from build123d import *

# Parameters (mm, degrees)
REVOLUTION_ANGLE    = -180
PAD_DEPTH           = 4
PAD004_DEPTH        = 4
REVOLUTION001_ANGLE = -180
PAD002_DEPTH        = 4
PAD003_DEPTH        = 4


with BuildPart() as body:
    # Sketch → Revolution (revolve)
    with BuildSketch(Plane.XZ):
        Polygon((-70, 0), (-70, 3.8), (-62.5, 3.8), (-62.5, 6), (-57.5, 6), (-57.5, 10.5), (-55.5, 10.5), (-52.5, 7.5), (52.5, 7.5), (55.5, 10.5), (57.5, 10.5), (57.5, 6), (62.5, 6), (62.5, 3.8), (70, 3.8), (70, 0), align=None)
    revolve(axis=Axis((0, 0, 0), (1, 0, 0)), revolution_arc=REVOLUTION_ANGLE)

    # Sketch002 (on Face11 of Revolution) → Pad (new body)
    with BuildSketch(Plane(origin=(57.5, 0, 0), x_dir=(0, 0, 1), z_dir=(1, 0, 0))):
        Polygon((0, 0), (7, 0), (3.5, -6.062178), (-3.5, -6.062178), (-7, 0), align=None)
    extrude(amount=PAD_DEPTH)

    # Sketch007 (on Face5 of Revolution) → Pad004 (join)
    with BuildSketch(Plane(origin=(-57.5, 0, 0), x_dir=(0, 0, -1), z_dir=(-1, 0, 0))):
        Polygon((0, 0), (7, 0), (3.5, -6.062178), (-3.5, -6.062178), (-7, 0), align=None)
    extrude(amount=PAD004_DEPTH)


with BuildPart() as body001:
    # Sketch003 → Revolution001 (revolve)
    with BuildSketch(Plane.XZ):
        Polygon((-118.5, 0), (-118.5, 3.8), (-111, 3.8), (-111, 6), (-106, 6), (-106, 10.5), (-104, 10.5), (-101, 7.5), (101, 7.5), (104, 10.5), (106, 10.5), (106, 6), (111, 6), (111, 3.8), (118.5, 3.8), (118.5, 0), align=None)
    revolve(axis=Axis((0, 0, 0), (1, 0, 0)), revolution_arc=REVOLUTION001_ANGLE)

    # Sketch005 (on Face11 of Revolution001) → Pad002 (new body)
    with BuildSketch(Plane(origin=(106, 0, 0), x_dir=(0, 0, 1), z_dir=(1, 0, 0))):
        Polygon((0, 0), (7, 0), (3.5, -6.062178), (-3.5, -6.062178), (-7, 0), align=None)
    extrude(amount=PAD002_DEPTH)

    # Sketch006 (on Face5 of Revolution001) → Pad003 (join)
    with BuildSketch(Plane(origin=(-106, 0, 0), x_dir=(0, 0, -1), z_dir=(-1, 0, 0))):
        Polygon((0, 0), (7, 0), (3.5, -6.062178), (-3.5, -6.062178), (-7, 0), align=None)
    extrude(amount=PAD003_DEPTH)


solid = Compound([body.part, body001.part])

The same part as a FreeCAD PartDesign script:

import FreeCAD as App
import Part
import Sketcher
from FreeCAD import Vector
Q = App.Units.Quantity

doc = App.newDocument("Part")
body = doc.addObject("PartDesign::Body", "Body")

sketch1 = body.newObject("Sketcher::SketchObject", "Sketch")
sketch1.AttachmentSupport = (doc.getObject("XZ_Plane"), [""])
sketch1.MapMode = "FlatFace"
sketch1.addGeometry([
    Part.LineSegment(Vector(-70, 3.8, 0), Vector(-70, 0, 0)),
    Part.LineSegment(Vector(-70, 0, 0), Vector(70, 0, 0)),
    Part.LineSegment(Vector(70, 0, 0), Vector(70, 3.8, 0)),
    Part.LineSegment(Vector(70, 3.8, 0), Vector(62.5, 3.8, 0)),
    Part.LineSegment(Vector(62.5, 3.8, 0), Vector(62.5, 6, 0)),
    Part.LineSegment(Vector(62.5, 6, 0), Vector(57.5, 6, 0)),
    Part.LineSegment(Vector(57.5, 6, 0), Vector(57.5, 10.5, 0)),
    Part.LineSegment(Vector(57.5, 10.5, 0), Vector(55.5, 10.5, 0)),
    Part.LineSegment(Vector(55.5, 10.5, 0), Vector(52.5, 7.5, 0)),
    Part.LineSegment(Vector(52.5, 7.5, 0), Vector(-52.5, 7.5, 0)),
    Part.LineSegment(Vector(-52.5, 7.5, 0), Vector(-55.5, 10.5, 0)),
    Part.LineSegment(Vector(-55.5, 10.5, 0), Vector(-57.5, 10.5, 0)),
    Part.LineSegment(Vector(-57.5, 10.5, 0), Vector(-57.5, 6, 0)),
    Part.LineSegment(Vector(-57.5, 6, 0), Vector(-62.5, 6, 0)),
    Part.LineSegment(Vector(-62.5, 6, 0), Vector(-62.5, 3.8, 0)),
    Part.LineSegment(Vector(-62.5, 3.8, 0), Vector(-70, 3.8, 0)),
], False)
sketch1.addConstraint([
    Sketcher.Constraint("Coincident", 0, 2, 1, 1),
    Sketcher.Constraint("Coincident", 1, 2, 2, 1),
    Sketcher.Constraint("Coincident", 2, 2, 3, 1),
    Sketcher.Constraint("Coincident", 3, 2, 4, 1),
    Sketcher.Constraint("Coincident", 4, 2, 5, 1),
    Sketcher.Constraint("Coincident", 5, 2, 6, 1),
    Sketcher.Constraint("Coincident", 6, 2, 7, 1),
    Sketcher.Constraint("Coincident", 7, 2, 8, 1),
    Sketcher.Constraint("Coincident", 8, 2, 9, 1),
    Sketcher.Constraint("Coincident", 9, 2, 10, 1),
    Sketcher.Constraint("Coincident", 10, 2, 11, 1),
    Sketcher.Constraint("Coincident", 11, 2, 12, 1),
    Sketcher.Constraint("Coincident", 12, 2, 13, 1),
    Sketcher.Constraint("Coincident", 13, 2, 14, 1),
    Sketcher.Constraint("Coincident", 14, 2, 15, 1),
    Sketcher.Constraint("Coincident", 15, 2, 0, 1),
    Sketcher.Constraint("Vertical", 0),
    Sketcher.Constraint("Horizontal", 1),
    Sketcher.Constraint("Vertical", 2),
    Sketcher.Constraint("Horizontal", 3),
    Sketcher.Constraint("Vertical", 4),
    Sketcher.Constraint("Horizontal", 5),
    Sketcher.Constraint("Vertical", 6),
    Sketcher.Constraint("Horizontal", 7),
    Sketcher.Constraint("Horizontal", 9),
    Sketcher.Constraint("Horizontal", 11),
    Sketcher.Constraint("Vertical", 12),
    Sketcher.Constraint("Horizontal", 13),
    Sketcher.Constraint("Vertical", 14),
    Sketcher.Constraint("Horizontal", 15),
    Sketcher.Constraint("Symmetric", 0, 2, 1, 2, -1, 1),
    Sketcher.Constraint("Symmetric", 7, 2, 10, 2, -2),
    Sketcher.Constraint("Symmetric", 5, 2, 12, 2, -2),
    Sketcher.Constraint("Symmetric", 3, 2, 14, 2, -2),
    Sketcher.Constraint("Perpendicular", 8, 10),
    Sketcher.Constraint("Equal", 8, 10),
    Sketcher.Constraint("DistanceX", 1, 1, 1, 2, 140.0),
    Sketcher.Constraint("DistanceX", 5, 2, 5, 1, 5.0),
    Sketcher.Constraint("DistanceX", 7, 2, 7, 1, 2.0),
    Sketcher.Constraint("DistanceX", 9, 2, 9, 1, 105.0),
    Sketcher.Constraint("DistanceX", 3, 2, 3, 1, 7.5),
    Sketcher.Constraint("DistanceY", 0, 2, 0, 1, 3.8),
    Sketcher.Constraint("DistanceY", 4, 1, 4, 2, 2.2),
    Sketcher.Constraint("DistanceY", 6, 1, 6, 2, 4.5),
])
revolution = body.newObject("PartDesign::Revolution", "Revolution")
revolution.Profile = sketch1
revolution.ReferenceAxis = (sketch1, ["H_Axis"])
revolution.Angle = 180
revolution.Reversed = True

sketch2 = body.newObject("Sketcher::SketchObject", "Sketch001")
sketch2.AttachmentSupport = (doc.getObject("YZ_Plane"), [""])
sketch2.MapMode = "FlatFace"
sketch2.AttachmentOffset = App.Placement(Vector(0, 0, 57.5), App.Rotation())
sketch2.addGeometry([
    Part.LineSegment(Vector(0, 7, 0), Vector(0, -7, 0)),
    Part.LineSegment(Vector(0, -7, 0), Vector(6, -4, 0)),
    Part.LineSegment(Vector(6, -4, 0), Vector(6, 4, 0)),
    Part.LineSegment(Vector(6, 4, 0), Vector(0, 7, 0)),
], False)
sketch2.addConstraint([
    Sketcher.Constraint("Coincident", 0, 2, 1, 1),
    Sketcher.Constraint("Coincident", 1, 2, 2, 1),
    Sketcher.Constraint("Coincident", 2, 2, 3, 1),
    Sketcher.Constraint("Coincident", 3, 2, 0, 1),
    Sketcher.Constraint("Vertical", 0),
    Sketcher.Constraint("Vertical", 2),
    Sketcher.Constraint("Symmetric", 0, 2, 3, 2, -1, 1),
    Sketcher.Constraint("Equal", 1, 3),
    Sketcher.Constraint("DistanceY", 0, 2, 0, 1, 14.0),
    Sketcher.Constraint("DistanceY", 2, 1, 2, 2, 7.0),
    Sketcher.Constraint("Angle", 1, Q("29.999999 deg")),
])
pad1 = body.newObject("PartDesign::Pad", "Pad")
pad1.Profile = sketch2
pad1.Length = 4

sketch3 = body.newObject("Sketcher::SketchObject", "Sketch002")
sketch3.AttachmentSupport = (doc.getObject("YZ_Plane"), [""])
sketch3.MapMode = "FlatFace"
sketch3.AttachmentOffset = App.Placement(Vector(0, 0, -57.5), App.Rotation())
sketch3.addGeometry([
    Part.LineSegment(Vector(0, -7, 0), Vector(0, 7, 0)),
    Part.LineSegment(Vector(0, 7, 0), Vector(6, 4, 0)),
    Part.LineSegment(Vector(6, 4, 0), Vector(6, -4, 0)),
    Part.LineSegment(Vector(6, -4, 0), Vector(0, -7, 0)),
], False)
sketch3.addConstraint([
    Sketcher.Constraint("Coincident", 0, 2, 1, 1),
    Sketcher.Constraint("Coincident", 1, 2, 2, 1),
    Sketcher.Constraint("Coincident", 2, 2, 3, 1),
    Sketcher.Constraint("Coincident", 3, 2, 0, 1),
    Sketcher.Constraint("Vertical", 0),
    Sketcher.Constraint("Vertical", 2),
    Sketcher.Constraint("Symmetric", 0, 2, 3, 2, -1, 1),
    Sketcher.Constraint("Equal", 1, 3),
    Sketcher.Constraint("DistanceY", 0, 1, 0, 2, 14.0),
    Sketcher.Constraint("DistanceY", 2, 2, 2, 1, 7.0),
    Sketcher.Constraint("Angle", 1, Q("-29.999999 deg")),
])
pad2 = body.newObject("PartDesign::Pad", "Pad001")
pad2.Profile = sketch3
pad2.Length = 4
pad2.Reversed = True
body2 = doc.addObject("PartDesign::Body", "Body001")

sketch4 = body2.newObject("Sketcher::SketchObject", "Sketch003")
sketch4.AttachmentSupport = (doc.getObject("XZ_Plane001"), [""])
sketch4.MapMode = "FlatFace"
sketch4.addGeometry([
    Part.LineSegment(Vector(-118.5, 3.8, 0), Vector(-118.5, 0, 0)),
    Part.LineSegment(Vector(-118.5, 0, 0), Vector(118.5, 0, 0)),
    Part.LineSegment(Vector(118.5, 0, 0), Vector(118.5, 3.8, 0)),
    Part.LineSegment(Vector(118.5, 3.8, 0), Vector(111, 3.8, 0)),
    Part.LineSegment(Vector(111, 3.8, 0), Vector(111, 6, 0)),
    Part.LineSegment(Vector(111, 6, 0), Vector(106, 6, 0)),
    Part.LineSegment(Vector(106, 6, 0), Vector(106, 10.5, 0)),
    Part.LineSegment(Vector(106, 10.5, 0), Vector(104, 10.5, 0)),
    Part.LineSegment(Vector(104, 10.5, 0), Vector(101, 7.5, 0)),
    Part.LineSegment(Vector(101, 7.5, 0), Vector(-101, 7.5, 0)),
    Part.LineSegment(Vector(-101, 7.5, 0), Vector(-104, 10.5, 0)),
    Part.LineSegment(Vector(-104, 10.5, 0), Vector(-106, 10.5, 0)),
    Part.LineSegment(Vector(-106, 10.5, 0), Vector(-106, 6, 0)),
    Part.LineSegment(Vector(-106, 6, 0), Vector(-111, 6, 0)),
    Part.LineSegment(Vector(-111, 6, 0), Vector(-111, 3.8, 0)),
    Part.LineSegment(Vector(-111, 3.8, 0), Vector(-118.5, 3.8, 0)),
], False)
sketch4.addConstraint([
    Sketcher.Constraint("Coincident", 0, 2, 1, 1),
    Sketcher.Constraint("Coincident", 1, 2, 2, 1),
    Sketcher.Constraint("Coincident", 2, 2, 3, 1),
    Sketcher.Constraint("Coincident", 3, 2, 4, 1),
    Sketcher.Constraint("Coincident", 4, 2, 5, 1),
    Sketcher.Constraint("Coincident", 5, 2, 6, 1),
    Sketcher.Constraint("Coincident", 6, 2, 7, 1),
    Sketcher.Constraint("Coincident", 7, 2, 8, 1),
    Sketcher.Constraint("Coincident", 8, 2, 9, 1),
    Sketcher.Constraint("Coincident", 9, 2, 10, 1),
    Sketcher.Constraint("Coincident", 10, 2, 11, 1),
    Sketcher.Constraint("Coincident", 11, 2, 12, 1),
    Sketcher.Constraint("Coincident", 12, 2, 13, 1),
    Sketcher.Constraint("Coincident", 13, 2, 14, 1),
    Sketcher.Constraint("Coincident", 14, 2, 15, 1),
    Sketcher.Constraint("Coincident", 15, 2, 0, 1),
    Sketcher.Constraint("Vertical", 0),
    Sketcher.Constraint("Horizontal", 1),
    Sketcher.Constraint("Vertical", 2),
    Sketcher.Constraint("Horizontal", 3),
    Sketcher.Constraint("Vertical", 4),
    Sketcher.Constraint("Horizontal", 5),
    Sketcher.Constraint("Vertical", 6),
    Sketcher.Constraint("Horizontal", 7),
    Sketcher.Constraint("Horizontal", 9),
    Sketcher.Constraint("Horizontal", 11),
    Sketcher.Constraint("Vertical", 12),
    Sketcher.Constraint("Horizontal", 13),
    Sketcher.Constraint("Vertical", 14),
    Sketcher.Constraint("Horizontal", 15),
    Sketcher.Constraint("Symmetric", 0, 2, 1, 2, -1, 1),
    Sketcher.Constraint("Symmetric", 7, 2, 10, 2, -2),
    Sketcher.Constraint("Symmetric", 5, 2, 12, 2, -2),
    Sketcher.Constraint("Symmetric", 3, 2, 14, 2, -2),
    Sketcher.Constraint("Perpendicular", 8, 10),
    Sketcher.Constraint("Equal", 8, 10),
    Sketcher.Constraint("DistanceX", 1, 1, 1, 2, 237.0),
    Sketcher.Constraint("DistanceX", 5, 2, 5, 1, 5.0),
    Sketcher.Constraint("DistanceX", 7, 2, 7, 1, 2.0),
    Sketcher.Constraint("DistanceX", 9, 2, 9, 1, 202.0),
    Sketcher.Constraint("DistanceX", 3, 2, 3, 1, 7.5),
    Sketcher.Constraint("DistanceY", 0, 2, 0, 1, 3.8),
    Sketcher.Constraint("DistanceY", 4, 1, 4, 2, 2.2),
    Sketcher.Constraint("DistanceY", 6, 1, 6, 2, 4.5),
])
revolution2 = body2.newObject("PartDesign::Revolution", "Revolution001")
revolution2.Profile = sketch4
revolution2.ReferenceAxis = (sketch4, ["H_Axis"])
revolution2.Angle = 180
revolution2.Reversed = True

sketch5 = body2.newObject("Sketcher::SketchObject", "Sketch004")
sketch5.AttachmentSupport = (doc.getObject("YZ_Plane001"), [""])
sketch5.MapMode = "FlatFace"
sketch5.AttachmentOffset = App.Placement(Vector(0, 0, 106), App.Rotation())
sketch5.addGeometry([
    Part.LineSegment(Vector(0, 7, 0), Vector(0, -7, 0)),
    Part.LineSegment(Vector(0, -7, 0), Vector(6, -4, 0)),
    Part.LineSegment(Vector(6, -4, 0), Vector(6, 4, 0)),
    Part.LineSegment(Vector(6, 4, 0), Vector(0, 7, 0)),
], False)
sketch5.addConstraint([
    Sketcher.Constraint("Coincident", 0, 2, 1, 1),
    Sketcher.Constraint("Coincident", 1, 2, 2, 1),
    Sketcher.Constraint("Coincident", 2, 2, 3, 1),
    Sketcher.Constraint("Coincident", 3, 2, 0, 1),
    Sketcher.Constraint("Vertical", 0),
    Sketcher.Constraint("Vertical", 2),
    Sketcher.Constraint("Symmetric", 0, 2, 3, 2, -1, 1),
    Sketcher.Constraint("Equal", 1, 3),
    Sketcher.Constraint("DistanceY", 0, 2, 0, 1, 14.0),
    Sketcher.Constraint("DistanceY", 2, 1, 2, 2, 7.0),
    Sketcher.Constraint("Angle", 1, Q("29.999999 deg")),
])
pad3 = body2.newObject("PartDesign::Pad", "Pad002")
pad3.Profile = sketch5
pad3.Length = 4

sketch6 = body2.newObject("Sketcher::SketchObject", "Sketch005")
sketch6.AttachmentSupport = (doc.getObject("YZ_Plane001"), [""])
sketch6.MapMode = "FlatFace"
sketch6.AttachmentOffset = App.Placement(Vector(0, 0, -106), App.Rotation())
sketch6.addGeometry([
    Part.LineSegment(Vector(0, -7, 0), Vector(0, 7, 0)),
    Part.LineSegment(Vector(0, 7, 0), Vector(6, 4, 0)),
    Part.LineSegment(Vector(6, 4, 0), Vector(6, -4, 0)),
    Part.LineSegment(Vector(6, -4, 0), Vector(0, -7, 0)),
], False)
sketch6.addConstraint([
    Sketcher.Constraint("Coincident", 0, 2, 1, 1),
    Sketcher.Constraint("Coincident", 1, 2, 2, 1),
    Sketcher.Constraint("Coincident", 2, 2, 3, 1),
    Sketcher.Constraint("Coincident", 3, 2, 0, 1),
    Sketcher.Constraint("Vertical", 0),
    Sketcher.Constraint("Vertical", 2),
    Sketcher.Constraint("Symmetric", 0, 2, 3, 2, -1, 1),
    Sketcher.Constraint("Equal", 1, 3),
    Sketcher.Constraint("DistanceY", 0, 1, 0, 2, 14.0),
    Sketcher.Constraint("DistanceY", 2, 2, 2, 1, 7.0),
    Sketcher.Constraint("Angle", 1, Q("-29.999999 deg")),
])
pad4 = body2.newObject("PartDesign::Pad", "Pad003")
pad4.Profile = sketch6
pad4.Length = 4
pad4.Reversed = True

doc.recompute()
